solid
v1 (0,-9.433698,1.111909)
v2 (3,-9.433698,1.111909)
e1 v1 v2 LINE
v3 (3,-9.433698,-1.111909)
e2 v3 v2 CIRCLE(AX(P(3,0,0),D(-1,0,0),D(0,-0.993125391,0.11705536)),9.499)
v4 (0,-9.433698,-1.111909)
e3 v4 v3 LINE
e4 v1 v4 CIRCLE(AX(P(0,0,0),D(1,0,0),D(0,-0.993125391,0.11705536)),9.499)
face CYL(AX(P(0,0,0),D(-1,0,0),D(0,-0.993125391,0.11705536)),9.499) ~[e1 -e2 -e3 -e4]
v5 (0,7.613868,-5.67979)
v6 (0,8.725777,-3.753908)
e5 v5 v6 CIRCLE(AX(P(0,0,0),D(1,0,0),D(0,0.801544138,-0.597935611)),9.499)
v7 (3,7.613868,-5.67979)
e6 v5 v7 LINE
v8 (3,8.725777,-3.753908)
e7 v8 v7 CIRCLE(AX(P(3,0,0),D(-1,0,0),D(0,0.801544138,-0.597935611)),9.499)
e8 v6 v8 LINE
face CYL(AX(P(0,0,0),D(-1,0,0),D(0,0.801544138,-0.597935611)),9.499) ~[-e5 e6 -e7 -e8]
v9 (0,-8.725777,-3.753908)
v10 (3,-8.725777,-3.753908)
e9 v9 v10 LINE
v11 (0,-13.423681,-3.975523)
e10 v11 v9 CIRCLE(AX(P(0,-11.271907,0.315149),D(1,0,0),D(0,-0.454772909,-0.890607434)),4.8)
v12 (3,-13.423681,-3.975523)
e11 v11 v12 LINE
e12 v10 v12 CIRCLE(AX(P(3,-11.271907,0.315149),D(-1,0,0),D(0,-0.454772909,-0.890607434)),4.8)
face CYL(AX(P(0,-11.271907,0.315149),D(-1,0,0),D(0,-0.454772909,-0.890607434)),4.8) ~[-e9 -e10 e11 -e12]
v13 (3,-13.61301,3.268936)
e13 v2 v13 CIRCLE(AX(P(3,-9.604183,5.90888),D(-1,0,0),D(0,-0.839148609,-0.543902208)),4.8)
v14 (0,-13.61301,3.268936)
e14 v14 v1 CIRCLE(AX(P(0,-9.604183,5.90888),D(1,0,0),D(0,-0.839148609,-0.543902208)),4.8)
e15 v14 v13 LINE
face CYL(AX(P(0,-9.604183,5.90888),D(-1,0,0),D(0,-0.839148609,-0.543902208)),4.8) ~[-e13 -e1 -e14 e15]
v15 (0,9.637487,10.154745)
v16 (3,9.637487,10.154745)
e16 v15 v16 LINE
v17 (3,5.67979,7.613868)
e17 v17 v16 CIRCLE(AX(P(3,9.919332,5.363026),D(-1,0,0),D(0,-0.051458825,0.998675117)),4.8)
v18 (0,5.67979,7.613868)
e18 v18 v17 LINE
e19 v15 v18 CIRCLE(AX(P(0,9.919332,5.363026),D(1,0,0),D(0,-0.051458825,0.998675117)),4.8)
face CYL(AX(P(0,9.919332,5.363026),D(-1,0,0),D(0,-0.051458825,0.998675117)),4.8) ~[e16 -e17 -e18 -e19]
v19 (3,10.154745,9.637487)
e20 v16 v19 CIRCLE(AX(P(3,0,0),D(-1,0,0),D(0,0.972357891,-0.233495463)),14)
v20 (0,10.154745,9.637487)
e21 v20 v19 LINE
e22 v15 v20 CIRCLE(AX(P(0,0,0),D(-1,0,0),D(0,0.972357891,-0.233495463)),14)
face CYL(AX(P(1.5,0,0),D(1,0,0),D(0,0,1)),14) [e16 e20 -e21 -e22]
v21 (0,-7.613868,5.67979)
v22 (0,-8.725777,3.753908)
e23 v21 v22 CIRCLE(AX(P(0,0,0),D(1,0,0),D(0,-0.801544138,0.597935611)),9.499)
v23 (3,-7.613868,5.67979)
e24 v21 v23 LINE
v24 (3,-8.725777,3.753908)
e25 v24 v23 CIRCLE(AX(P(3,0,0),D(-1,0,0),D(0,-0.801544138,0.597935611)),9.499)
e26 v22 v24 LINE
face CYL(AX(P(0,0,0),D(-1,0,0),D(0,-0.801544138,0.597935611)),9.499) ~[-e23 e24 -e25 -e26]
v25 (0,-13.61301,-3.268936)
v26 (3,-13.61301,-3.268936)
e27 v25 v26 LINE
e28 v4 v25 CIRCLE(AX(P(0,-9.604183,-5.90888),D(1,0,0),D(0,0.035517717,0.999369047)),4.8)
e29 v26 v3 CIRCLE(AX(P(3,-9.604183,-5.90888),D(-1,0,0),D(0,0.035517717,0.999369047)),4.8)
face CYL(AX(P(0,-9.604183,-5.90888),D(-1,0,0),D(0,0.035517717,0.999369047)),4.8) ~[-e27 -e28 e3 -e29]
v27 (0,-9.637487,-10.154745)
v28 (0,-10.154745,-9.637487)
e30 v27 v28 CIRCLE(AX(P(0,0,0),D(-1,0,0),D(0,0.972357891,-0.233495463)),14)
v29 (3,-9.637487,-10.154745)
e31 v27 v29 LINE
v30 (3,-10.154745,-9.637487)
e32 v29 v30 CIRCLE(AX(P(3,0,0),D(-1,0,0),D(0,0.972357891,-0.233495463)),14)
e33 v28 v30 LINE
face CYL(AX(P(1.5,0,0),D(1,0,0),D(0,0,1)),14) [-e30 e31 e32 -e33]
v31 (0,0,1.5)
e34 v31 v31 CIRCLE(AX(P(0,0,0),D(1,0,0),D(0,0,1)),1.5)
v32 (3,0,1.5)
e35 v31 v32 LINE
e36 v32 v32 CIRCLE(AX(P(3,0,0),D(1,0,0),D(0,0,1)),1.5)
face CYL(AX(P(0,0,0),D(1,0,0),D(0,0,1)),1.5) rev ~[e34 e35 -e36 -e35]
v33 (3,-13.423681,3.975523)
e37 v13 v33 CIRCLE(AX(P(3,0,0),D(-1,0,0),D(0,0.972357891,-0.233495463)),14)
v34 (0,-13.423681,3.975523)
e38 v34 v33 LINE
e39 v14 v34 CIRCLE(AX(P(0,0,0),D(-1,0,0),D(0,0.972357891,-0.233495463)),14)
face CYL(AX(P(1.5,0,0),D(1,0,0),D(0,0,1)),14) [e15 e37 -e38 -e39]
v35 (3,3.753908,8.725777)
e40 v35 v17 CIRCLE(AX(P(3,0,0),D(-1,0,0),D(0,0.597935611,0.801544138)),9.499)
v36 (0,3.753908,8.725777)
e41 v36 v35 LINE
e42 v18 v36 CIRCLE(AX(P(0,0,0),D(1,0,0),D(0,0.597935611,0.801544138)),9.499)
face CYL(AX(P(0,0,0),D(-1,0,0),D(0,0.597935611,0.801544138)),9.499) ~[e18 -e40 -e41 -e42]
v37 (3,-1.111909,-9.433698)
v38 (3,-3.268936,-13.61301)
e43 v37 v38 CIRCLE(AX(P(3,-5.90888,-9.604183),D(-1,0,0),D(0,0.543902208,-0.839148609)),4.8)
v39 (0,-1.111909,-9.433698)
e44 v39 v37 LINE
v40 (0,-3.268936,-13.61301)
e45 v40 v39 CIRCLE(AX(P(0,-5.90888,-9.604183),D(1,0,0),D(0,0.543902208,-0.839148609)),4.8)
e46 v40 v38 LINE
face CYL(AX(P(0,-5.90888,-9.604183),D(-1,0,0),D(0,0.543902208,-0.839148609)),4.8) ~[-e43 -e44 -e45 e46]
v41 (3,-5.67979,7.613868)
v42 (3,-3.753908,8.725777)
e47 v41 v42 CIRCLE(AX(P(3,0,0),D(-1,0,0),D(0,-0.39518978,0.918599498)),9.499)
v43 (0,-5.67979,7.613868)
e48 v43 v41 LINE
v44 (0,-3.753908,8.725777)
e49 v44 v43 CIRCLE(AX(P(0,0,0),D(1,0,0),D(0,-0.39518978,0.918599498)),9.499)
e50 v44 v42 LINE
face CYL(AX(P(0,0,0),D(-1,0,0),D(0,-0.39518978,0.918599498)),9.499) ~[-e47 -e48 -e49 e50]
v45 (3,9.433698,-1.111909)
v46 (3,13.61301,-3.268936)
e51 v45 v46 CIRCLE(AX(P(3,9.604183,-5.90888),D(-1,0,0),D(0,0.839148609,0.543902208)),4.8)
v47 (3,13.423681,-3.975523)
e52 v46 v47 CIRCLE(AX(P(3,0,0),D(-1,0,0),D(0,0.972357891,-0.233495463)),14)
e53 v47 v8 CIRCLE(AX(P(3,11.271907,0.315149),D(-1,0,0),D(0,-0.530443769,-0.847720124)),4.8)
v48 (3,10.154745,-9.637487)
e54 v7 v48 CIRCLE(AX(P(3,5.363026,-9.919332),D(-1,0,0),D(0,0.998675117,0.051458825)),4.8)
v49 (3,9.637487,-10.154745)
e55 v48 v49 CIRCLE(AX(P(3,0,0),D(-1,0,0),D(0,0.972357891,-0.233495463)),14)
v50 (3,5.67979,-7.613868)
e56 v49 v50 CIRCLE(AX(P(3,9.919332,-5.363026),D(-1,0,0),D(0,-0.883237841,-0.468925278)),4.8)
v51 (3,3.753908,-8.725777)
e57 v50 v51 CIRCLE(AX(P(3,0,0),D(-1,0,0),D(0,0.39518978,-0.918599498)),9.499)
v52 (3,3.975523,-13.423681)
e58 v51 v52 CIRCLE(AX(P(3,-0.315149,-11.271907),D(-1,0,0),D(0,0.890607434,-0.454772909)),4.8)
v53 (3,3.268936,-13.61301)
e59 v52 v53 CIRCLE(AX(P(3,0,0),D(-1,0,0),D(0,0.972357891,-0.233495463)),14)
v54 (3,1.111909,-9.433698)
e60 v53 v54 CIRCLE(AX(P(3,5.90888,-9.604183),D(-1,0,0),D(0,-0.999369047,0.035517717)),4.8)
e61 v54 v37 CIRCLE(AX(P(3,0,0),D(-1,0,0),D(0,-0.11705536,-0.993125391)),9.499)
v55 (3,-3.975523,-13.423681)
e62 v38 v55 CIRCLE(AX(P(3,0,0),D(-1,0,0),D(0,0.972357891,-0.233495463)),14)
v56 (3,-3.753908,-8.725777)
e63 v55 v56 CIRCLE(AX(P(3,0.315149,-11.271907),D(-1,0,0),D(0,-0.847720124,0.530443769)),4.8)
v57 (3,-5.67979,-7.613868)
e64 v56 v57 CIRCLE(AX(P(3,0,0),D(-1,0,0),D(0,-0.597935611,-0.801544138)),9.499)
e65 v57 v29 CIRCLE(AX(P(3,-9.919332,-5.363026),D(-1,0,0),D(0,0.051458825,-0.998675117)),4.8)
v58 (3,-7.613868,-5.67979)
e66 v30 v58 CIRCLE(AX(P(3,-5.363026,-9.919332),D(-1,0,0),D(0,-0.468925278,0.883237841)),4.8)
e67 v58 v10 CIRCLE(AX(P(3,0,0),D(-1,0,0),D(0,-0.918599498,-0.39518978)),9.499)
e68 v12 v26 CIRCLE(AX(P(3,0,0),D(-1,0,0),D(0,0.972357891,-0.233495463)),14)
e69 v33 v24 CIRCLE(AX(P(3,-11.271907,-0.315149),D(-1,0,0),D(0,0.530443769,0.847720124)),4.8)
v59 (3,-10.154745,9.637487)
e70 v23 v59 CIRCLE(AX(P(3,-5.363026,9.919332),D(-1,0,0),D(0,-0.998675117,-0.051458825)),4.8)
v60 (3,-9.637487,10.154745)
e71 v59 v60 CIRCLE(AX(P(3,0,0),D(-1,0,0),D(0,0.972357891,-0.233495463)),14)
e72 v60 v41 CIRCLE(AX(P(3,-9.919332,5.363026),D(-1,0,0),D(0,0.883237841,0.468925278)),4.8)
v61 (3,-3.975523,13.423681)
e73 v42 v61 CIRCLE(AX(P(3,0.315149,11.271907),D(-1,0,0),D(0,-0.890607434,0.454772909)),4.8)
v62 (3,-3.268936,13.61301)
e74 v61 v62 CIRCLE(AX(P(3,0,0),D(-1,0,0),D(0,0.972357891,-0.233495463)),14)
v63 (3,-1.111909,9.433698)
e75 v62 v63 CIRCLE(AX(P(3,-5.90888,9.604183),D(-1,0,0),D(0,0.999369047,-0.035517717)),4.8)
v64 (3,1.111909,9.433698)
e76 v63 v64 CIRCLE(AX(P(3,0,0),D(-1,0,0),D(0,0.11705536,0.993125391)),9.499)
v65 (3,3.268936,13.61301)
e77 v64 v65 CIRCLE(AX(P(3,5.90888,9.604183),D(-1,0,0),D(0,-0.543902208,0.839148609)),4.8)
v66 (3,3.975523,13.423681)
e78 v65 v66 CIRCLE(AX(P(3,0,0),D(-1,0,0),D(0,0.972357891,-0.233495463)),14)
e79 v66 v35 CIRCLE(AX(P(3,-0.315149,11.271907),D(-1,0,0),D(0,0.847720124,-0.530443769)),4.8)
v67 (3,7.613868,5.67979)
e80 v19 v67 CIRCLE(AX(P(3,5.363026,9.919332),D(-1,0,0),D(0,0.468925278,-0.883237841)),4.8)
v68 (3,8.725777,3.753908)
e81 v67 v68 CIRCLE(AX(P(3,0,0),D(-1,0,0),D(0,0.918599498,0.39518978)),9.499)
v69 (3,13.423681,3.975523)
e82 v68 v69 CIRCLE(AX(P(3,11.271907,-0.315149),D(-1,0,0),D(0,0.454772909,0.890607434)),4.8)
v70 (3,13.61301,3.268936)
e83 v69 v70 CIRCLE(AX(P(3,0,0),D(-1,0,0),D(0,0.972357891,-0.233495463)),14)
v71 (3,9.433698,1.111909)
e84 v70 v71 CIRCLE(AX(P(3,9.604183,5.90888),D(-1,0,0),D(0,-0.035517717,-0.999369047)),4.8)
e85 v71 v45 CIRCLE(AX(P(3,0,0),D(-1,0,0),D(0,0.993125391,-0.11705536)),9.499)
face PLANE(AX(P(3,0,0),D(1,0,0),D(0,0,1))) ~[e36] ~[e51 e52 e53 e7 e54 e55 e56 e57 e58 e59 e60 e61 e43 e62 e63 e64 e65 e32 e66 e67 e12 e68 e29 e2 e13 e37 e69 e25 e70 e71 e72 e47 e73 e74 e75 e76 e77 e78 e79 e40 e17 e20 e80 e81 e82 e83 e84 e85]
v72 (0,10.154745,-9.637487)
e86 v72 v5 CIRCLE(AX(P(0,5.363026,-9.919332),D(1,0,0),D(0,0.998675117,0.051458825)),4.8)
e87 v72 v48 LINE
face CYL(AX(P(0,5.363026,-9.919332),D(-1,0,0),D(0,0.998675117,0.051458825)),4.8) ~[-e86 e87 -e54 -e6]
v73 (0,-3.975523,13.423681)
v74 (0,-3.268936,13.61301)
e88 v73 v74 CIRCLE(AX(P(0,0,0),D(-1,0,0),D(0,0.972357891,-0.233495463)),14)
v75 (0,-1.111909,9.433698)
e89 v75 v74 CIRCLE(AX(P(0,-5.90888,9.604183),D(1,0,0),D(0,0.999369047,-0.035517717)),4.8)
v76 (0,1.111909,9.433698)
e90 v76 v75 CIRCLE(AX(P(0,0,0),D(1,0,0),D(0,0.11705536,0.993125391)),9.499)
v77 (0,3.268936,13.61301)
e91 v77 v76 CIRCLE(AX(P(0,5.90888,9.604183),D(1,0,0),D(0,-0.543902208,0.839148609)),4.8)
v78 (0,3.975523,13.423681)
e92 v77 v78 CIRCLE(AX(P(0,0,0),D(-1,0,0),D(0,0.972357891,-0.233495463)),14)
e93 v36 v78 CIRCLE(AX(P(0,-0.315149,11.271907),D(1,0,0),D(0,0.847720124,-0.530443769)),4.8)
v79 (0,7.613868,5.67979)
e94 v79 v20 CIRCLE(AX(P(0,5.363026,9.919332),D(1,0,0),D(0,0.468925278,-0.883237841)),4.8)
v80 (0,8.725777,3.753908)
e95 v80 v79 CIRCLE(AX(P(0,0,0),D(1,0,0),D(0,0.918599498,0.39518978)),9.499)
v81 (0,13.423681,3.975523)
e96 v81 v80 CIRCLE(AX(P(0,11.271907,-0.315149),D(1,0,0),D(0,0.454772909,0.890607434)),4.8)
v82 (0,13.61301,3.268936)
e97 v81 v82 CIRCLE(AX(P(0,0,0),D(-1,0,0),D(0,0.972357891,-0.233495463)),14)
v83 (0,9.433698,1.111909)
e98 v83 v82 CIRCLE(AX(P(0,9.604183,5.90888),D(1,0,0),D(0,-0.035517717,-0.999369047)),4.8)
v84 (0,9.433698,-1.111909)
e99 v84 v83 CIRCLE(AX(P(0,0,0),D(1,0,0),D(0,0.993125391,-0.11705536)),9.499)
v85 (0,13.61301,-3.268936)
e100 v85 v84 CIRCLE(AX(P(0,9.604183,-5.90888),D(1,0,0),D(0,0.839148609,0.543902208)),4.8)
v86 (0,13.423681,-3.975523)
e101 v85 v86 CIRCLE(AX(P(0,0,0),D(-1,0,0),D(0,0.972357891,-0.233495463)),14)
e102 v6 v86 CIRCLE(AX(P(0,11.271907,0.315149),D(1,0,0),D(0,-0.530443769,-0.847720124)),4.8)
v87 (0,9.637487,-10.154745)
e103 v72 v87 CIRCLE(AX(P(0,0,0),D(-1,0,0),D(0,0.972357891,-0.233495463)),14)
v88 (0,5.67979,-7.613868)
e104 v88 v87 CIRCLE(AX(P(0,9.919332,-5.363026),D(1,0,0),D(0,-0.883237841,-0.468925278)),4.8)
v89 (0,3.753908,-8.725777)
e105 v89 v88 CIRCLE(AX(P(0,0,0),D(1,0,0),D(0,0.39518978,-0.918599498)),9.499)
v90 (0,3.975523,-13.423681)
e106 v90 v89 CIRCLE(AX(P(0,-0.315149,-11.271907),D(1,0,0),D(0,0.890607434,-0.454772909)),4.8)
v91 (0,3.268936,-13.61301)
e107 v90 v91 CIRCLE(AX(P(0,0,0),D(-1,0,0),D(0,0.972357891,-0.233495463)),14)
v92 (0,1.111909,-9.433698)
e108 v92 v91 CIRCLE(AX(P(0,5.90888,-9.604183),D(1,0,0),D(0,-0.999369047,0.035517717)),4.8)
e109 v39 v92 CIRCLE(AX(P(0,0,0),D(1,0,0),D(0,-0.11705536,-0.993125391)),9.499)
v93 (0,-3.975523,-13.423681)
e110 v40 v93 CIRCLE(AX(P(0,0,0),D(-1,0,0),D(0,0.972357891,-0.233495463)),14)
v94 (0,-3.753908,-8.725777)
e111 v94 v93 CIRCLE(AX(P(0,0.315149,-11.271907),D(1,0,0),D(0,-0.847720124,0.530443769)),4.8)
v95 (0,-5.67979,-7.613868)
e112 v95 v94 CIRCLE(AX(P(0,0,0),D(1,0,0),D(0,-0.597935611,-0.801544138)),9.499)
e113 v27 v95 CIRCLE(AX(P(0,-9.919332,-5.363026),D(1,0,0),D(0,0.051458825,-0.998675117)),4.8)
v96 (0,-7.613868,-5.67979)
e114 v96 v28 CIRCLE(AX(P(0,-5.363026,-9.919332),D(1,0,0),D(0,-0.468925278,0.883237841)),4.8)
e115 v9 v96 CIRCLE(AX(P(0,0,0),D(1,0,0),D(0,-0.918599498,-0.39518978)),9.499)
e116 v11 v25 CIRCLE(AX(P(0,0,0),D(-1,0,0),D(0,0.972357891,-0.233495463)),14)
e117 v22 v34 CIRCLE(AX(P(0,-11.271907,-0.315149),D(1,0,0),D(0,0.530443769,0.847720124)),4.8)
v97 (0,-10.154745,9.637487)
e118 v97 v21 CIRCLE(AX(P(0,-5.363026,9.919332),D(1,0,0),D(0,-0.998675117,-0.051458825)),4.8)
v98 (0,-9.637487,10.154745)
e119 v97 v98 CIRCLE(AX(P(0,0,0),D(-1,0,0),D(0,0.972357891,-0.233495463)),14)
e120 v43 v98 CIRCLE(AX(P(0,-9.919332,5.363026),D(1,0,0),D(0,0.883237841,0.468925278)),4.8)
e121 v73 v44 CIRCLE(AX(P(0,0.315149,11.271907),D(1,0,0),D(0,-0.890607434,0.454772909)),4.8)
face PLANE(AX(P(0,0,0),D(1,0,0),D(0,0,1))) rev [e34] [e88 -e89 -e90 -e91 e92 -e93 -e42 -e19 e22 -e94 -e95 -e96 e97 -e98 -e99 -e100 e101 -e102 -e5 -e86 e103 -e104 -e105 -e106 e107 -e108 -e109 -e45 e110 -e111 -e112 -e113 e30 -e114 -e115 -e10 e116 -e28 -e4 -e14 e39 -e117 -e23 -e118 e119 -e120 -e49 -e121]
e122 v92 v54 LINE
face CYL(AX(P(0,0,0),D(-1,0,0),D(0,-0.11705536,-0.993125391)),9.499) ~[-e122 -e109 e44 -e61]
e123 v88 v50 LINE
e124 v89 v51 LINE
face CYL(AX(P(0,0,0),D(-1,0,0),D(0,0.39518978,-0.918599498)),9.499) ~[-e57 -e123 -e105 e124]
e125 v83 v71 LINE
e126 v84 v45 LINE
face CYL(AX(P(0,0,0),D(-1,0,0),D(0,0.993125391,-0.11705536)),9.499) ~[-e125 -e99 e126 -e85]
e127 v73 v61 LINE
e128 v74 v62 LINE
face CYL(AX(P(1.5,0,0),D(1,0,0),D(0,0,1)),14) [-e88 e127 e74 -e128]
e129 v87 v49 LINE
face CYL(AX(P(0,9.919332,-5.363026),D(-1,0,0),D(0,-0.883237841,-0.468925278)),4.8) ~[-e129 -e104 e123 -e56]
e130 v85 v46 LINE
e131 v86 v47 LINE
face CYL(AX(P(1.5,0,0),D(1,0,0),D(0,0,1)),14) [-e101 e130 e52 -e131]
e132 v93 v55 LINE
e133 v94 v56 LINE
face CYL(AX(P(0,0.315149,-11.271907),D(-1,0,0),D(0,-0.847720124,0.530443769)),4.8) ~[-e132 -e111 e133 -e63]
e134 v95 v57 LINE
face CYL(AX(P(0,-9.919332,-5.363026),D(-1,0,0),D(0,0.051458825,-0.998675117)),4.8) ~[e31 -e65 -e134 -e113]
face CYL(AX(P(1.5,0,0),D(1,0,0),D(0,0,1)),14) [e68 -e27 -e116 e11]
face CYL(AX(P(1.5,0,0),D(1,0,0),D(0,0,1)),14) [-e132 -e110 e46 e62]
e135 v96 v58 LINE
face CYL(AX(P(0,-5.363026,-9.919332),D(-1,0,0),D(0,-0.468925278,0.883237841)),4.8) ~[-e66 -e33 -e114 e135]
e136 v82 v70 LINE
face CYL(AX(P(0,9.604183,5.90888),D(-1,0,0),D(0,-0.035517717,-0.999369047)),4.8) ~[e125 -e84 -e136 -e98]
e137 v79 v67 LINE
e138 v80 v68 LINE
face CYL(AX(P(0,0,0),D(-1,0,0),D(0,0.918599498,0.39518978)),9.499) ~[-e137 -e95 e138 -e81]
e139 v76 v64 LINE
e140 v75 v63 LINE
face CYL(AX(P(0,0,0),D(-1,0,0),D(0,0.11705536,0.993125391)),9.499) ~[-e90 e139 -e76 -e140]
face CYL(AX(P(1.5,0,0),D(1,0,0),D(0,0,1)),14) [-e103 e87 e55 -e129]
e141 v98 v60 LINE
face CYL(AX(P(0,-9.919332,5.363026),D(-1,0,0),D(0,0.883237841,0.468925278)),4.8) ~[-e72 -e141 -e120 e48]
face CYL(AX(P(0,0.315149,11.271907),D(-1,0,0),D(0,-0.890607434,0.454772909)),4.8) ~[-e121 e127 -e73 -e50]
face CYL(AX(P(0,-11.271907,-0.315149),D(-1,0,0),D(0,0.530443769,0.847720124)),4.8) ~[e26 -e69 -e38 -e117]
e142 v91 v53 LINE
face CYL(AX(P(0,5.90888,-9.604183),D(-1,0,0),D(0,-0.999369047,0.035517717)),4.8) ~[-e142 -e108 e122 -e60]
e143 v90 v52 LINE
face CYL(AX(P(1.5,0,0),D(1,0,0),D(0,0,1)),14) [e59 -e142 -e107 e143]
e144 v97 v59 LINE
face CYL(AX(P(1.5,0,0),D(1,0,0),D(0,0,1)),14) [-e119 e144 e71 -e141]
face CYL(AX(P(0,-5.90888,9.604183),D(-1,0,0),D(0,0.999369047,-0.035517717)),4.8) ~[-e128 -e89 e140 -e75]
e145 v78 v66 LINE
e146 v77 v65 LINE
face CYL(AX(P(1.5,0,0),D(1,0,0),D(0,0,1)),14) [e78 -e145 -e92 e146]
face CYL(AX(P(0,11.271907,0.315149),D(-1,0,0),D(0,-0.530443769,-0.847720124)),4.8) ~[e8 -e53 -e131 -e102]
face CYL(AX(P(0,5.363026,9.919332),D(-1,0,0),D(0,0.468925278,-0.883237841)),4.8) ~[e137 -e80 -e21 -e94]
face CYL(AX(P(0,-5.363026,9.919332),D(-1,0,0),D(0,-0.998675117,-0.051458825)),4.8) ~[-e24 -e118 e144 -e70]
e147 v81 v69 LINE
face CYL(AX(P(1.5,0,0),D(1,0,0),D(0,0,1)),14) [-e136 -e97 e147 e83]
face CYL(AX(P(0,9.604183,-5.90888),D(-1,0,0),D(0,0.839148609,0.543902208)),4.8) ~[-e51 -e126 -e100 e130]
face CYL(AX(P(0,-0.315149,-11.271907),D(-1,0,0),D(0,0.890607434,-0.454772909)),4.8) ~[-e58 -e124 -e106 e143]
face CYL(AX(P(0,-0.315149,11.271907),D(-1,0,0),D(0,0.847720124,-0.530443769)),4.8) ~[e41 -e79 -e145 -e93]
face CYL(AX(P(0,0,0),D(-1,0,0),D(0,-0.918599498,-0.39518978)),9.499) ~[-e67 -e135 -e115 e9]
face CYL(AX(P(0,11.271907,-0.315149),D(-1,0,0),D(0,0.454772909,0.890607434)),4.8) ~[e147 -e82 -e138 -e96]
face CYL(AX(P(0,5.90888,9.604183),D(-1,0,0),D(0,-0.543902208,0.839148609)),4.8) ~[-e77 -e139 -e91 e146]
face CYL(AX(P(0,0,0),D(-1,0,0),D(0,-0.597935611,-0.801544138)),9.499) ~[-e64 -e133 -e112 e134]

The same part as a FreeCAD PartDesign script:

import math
import FreeCAD as App
import Part
import Sketcher

V = App.Vector
Q = App.Units.Quantity


def add_polygon(sketch, points):
    """Adds a closed chain of lines whose ends are joined by coincident constraints."""
    first, n = sketch.GeometryCount, len(points)
    for a, b in zip(points, points[1:] + points[:1]):
        sketch.addGeometry(Part.LineSegment(App.Vector(*a, 0), App.Vector(*b, 0)), False)
    for i in range(n):
        sketch.addConstraint(Sketcher.Constraint("Coincident", first + i, 2, first + (i + 1) % n, 1))

doc = App.newDocument("Part")
body = doc.addObject("PartDesign::Body", "Body")

sketch1 = body.newObject("Sketcher::SketchObject", "Sketch")
sketch1.AttachmentSupport = (doc.getObject("XZ_Plane"), [""])
sketch1.MapMode = "FlatFace"
add_polygon(sketch1, [(0, -14), (0, 0), (3, 0), (3, -14)])
sketch1.addConstraint([
    Sketcher.Constraint("Vertical", 0),
    Sketcher.Constraint("Horizontal", 1),
    Sketcher.Constraint("Vertical", 2),
    Sketcher.Constraint("Horizontal", 3),
    Sketcher.Constraint("Coincident", 0, 2, -1, 1),
    Sketcher.Constraint("DistanceX", 1, 1, 1, 2, Q("3 mm")),
    Sketcher.Constraint("DistanceY", 0, 1, 0, 2, Q("14 mm")),
])
revolution = body.newObject("PartDesign::Revolution", "Revolution")
revolution.Profile = sketch1
revolution.ReferenceAxis = (sketch1, ["H_Axis"])
revolution.Angle = 360

sketch2 = body.newObject("Sketcher::SketchObject", "Sketch001")
sketch2.AttachmentSupport = (doc.getObject("YZ_Plane"), [""])
sketch2.MapMode = "FlatFace"
sketch2.addGeometry([
    Part.ArcOfCircle(Part.Circle(V(0, 0, 0), V(0, 0, 1), 9.5), math.radians(-6.72), math.radians(6.72)),
    Part.ArcOfCircle(Part.Circle(V(9.6, -5.9, 0), V(0, 0, 1), 4.8), math.radians(33), math.radians(92)),
    Part.ArcOfCircle(Part.Circle(V(0, 0, 0), V(0, 0, 1), 14), math.radians(-14), math.radians(14)),
    Part.ArcOfCircle(Part.Circle(V(9.6, 5.9, 0), V(0, 0, 1), 4.8), math.radians(-92), math.radians(-33)),
], False)
sketch2.addConstraint([
    Sketcher.Constraint("Coincident", 0, 1, 1, 2),
    Sketcher.Constraint("Coincident", 1, 1, 2, 1),
    Sketcher.Constraint("Coincident", 2, 2, 3, 2),
    Sketcher.Constraint("Coincident", 3, 1, 0, 2),
    Sketcher.Constraint("Coincident", 0, 3, -1, 1),
    Sketcher.Constraint("Coincident", 2, 3, -1, 1),
    Sketcher.Constraint("Equal", 1, 3),
    Sketcher.Constraint("Symmetric", 1, 3, 3, 3, -1),
    Sketcher.Constraint("Radius", 1, Q("4.8 mm")),
    Sketcher.Constraint("Radius", 0, Q("9.499 mm")),
    Sketcher.Constraint("Radius", 2, Q("14.0254 mm")),
    Sketcher.Constraint("DistanceX", -1, 1, 0, 1, Q("9.433698 mm")),
    Sketcher.Constraint("DistanceX", 0, 1, 1, 1, Q("4.198398 mm")),
])
pocket1 = body.newObject("PartDesign::Pocket", "Pocket")
pocket1.Profile = sketch2
pocket1.Type = "ThroughAll"
pocket1.Reversed = True
doc.recompute()

polarpattern = body.newObject("PartDesign::PolarPattern", "PolarPattern")
polarpattern.Originals = [pocket1]
polarpattern.Axis = (doc.getObject("X_Axis"), [""])
polarpattern.Angle = 360
polarpattern.Occurrences = 12
body.Tip = polarpattern

sketch3 = body.newObject("Sketcher::SketchObject", "Sketch002")
sketch3.AttachmentSupport = (doc.getObject("YZ_Plane"), [""])
sketch3.MapMode = "FlatFace"
sketch3.addGeometry(Part.Circle(V(0, 0, 0), V(0, 0, 1), 1.5), False)
sketch3.addConstraint([
    Sketcher.Constraint("Coincident", 0, 3, -1, 1),
    Sketcher.Constraint("Diameter", 0, Q("3 mm")),
])
pocket2 = body.newObject("PartDesign::Pocket", "Pocket001")
pocket2.Profile = sketch3
pocket2.Length = 100.000102
pocket2.Midplane = True

doc.recompute()
